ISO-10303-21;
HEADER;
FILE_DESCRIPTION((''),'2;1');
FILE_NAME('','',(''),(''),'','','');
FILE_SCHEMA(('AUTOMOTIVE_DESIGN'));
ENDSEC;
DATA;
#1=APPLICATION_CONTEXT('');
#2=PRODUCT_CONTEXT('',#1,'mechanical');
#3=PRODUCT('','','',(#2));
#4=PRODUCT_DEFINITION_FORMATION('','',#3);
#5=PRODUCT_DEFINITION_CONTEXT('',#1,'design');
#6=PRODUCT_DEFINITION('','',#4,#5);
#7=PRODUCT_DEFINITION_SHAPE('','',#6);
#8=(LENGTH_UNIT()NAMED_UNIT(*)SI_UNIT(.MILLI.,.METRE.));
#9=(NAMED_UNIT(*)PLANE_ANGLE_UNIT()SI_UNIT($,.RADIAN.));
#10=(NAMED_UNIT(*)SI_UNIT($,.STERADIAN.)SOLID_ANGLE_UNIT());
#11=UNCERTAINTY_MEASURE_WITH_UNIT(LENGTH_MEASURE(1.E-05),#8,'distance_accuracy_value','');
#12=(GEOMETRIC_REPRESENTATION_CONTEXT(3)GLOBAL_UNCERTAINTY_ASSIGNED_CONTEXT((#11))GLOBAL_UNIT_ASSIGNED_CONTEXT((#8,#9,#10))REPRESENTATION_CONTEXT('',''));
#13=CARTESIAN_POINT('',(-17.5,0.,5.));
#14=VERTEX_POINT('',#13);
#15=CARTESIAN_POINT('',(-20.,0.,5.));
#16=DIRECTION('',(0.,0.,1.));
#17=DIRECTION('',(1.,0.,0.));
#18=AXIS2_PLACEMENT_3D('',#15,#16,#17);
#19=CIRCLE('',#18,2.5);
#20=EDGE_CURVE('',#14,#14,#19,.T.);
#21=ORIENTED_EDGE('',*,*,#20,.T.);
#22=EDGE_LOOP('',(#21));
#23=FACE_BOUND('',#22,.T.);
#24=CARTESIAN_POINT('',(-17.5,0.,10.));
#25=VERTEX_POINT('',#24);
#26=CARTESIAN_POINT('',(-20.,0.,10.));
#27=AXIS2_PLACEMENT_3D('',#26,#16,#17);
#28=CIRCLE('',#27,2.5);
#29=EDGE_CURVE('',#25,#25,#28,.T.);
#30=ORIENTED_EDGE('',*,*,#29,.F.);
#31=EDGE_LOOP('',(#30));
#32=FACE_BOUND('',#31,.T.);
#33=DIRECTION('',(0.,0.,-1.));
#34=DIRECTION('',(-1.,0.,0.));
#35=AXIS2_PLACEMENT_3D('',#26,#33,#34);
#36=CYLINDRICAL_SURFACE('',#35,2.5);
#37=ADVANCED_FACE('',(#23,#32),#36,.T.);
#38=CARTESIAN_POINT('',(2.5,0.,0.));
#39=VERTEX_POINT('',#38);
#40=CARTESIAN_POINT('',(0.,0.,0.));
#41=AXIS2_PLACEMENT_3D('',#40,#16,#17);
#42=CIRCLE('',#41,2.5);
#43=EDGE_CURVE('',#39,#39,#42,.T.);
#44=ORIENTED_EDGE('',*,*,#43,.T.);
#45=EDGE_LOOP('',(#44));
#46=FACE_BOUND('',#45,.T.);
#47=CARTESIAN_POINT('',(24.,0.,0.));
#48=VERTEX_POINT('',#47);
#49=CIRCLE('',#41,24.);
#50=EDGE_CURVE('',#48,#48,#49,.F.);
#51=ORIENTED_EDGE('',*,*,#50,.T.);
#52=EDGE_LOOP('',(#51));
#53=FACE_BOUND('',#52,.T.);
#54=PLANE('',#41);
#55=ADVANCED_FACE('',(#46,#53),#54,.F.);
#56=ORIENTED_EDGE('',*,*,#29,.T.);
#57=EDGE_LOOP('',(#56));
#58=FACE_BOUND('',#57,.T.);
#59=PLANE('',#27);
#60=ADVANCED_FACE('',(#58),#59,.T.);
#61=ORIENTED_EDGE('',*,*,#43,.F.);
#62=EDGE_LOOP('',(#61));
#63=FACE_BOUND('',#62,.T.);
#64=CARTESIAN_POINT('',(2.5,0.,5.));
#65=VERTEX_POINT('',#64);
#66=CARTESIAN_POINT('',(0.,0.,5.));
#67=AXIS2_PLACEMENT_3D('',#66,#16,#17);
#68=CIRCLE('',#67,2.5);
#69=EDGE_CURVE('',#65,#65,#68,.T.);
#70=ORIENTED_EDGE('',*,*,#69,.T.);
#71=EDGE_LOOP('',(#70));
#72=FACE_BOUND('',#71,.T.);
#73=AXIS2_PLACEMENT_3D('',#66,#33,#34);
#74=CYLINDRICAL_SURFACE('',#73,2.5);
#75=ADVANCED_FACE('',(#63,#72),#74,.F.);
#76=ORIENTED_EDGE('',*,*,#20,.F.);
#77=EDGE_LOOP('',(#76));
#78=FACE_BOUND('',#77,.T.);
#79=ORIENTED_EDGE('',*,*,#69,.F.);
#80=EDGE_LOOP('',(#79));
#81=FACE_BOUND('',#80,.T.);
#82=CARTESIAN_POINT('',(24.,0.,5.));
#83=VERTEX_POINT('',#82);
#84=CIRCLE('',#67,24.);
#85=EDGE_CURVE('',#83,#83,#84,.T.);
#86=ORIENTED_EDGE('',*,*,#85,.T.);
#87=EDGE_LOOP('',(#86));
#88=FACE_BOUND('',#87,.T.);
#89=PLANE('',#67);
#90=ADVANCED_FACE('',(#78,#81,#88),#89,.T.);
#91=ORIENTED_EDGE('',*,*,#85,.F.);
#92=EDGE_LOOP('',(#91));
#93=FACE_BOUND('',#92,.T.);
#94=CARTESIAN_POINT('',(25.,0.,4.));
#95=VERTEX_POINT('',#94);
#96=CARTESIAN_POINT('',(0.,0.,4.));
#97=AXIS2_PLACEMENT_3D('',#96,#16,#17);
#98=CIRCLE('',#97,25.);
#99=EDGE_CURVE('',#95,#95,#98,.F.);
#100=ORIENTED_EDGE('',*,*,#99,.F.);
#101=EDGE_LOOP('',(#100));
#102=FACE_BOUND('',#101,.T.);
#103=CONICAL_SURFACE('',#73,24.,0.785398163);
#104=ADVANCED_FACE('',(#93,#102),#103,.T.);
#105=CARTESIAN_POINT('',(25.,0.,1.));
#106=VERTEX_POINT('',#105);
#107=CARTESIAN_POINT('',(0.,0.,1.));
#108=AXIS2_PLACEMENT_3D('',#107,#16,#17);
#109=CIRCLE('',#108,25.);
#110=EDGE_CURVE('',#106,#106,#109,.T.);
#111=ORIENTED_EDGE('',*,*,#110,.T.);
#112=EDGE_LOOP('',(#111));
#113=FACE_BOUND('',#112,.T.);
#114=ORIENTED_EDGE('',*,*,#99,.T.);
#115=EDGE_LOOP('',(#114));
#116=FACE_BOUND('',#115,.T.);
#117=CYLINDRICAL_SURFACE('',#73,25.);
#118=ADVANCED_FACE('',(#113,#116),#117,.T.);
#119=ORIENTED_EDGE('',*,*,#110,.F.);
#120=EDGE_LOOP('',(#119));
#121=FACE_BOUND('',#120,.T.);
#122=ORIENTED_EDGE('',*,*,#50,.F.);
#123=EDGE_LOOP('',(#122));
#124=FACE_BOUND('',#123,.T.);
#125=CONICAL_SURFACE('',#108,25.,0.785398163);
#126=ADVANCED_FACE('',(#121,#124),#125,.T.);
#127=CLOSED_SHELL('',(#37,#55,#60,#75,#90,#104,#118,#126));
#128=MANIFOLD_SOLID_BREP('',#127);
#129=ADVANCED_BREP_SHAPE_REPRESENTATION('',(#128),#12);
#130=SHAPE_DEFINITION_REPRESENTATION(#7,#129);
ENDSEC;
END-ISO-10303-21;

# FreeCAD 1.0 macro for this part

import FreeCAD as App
import Part
import Sketcher


def edges_at(feature, points):
    """Names of the edges that pass closest to the given points."""
    edges = feature.Shape.Edges
    near = lambda p: min(range(len(edges)), key=lambda i: edges[i].distToShape(Part.Vertex(*p))[0])
    return sorted({f"Edge{near(p) + 1}" for p in points})

doc = App.newDocument("Part")
params = doc.addObject("Spreadsheet::Sheet", "Params")
for row, (alias, value) in enumerate([
    ("sketch1_diameter", "50 mm"),
    ("sketch1_diameter2", "5 mm"),
    ("pad1_length", "5 mm"),
    ("sketch2_diameter", "5 mm"),
    ("pad2_length", "5 mm"),
    ("chamfer_size", "1 mm"),
], start=1):
    params.set(f"A{row}", alias)
    params.set(f"B{row}", "=" + value)
    params.setAlias(f"B{row}", alias)

body = doc.addObject("PartDesign::Body", "Body")

# Sketch on XY plane
sketch1 = doc.addObject("Sketcher::SketchObject", "Sketch")
body.addObject(sketch1)
sketch1.AttachmentSupport = (doc.XY_Plane, [""])
sketch1.MapMode = "FlatFace"
sketch1.addGeometry([
    Part.Circle(App.Vector(0, 0, 0), App.Vector(0, 0, 1), 25),
    Part.Circle(App.Vector(0, 0, 0), App.Vector(0, 0, 1), 2.5),
], False)
sketch1.addConstraint([
    Sketcher.Constraint("Coincident", 0, 3, -1, 1),
    Sketcher.Constraint("Coincident", 1, 3, -1, 1),
    Sketcher.Constraint("Diameter", 0, 50.0),
    Sketcher.Constraint("Diameter", 1, 5.0),
])
sketch1.setExpression("Constraints[2]", "Params.sketch1_diameter")
sketch1.setExpression("Constraints[3]", "Params.sketch1_diameter2")
pad1 = doc.addObject("PartDesign::Pad", "Pad")
body.addObject(pad1)
pad1.Profile = sketch1
pad1.setExpression("Length", "Params.pad1_length")

# Sketch on XY plane
sketch2 = doc.addObject("Sketcher::SketchObject", "Sketch001")
body.addObject(sketch2)
sketch2.AttachmentSupport = (doc.XY_Plane, [""])
sketch2.MapMode = "FlatFace"
sketch2.AttachmentOffset = App.Placement(App.Vector(0, 0, 5), App.Rotation())
sketch2.addGeometry(Part.Circle(App.Vector(-20, 0, 0), App.Vector(0, 0, 1), 2.5), False)
sketch2.addConstraint([
    Sketcher.Constraint("PointOnObject", 0, 3, -1),
    Sketcher.Constraint("Diameter", 0, 5.0),
    Sketcher.Constraint("DistanceX", 0, 3, -1, 1, 20.0),
])
sketch2.setExpression("Constraints[1]", "Params.sketch2_diameter")
pad2 = doc.addObject("PartDesign::Pad", "Pad001")
body.addObject(pad2)
pad2.Profile = sketch2
pad2.setExpression("Length", "Params.pad2_length")
doc.recompute()

chamfer = doc.addObject("PartDesign::Chamfer", "Chamfer")
body.addObject(chamfer)
chamfer.Base = (pad2, edges_at(pad2, [(-25, 0, 0), (-25, 0, 5)]))
chamfer.setExpression("Size", "Params.chamfer_size")

doc.recompute()
